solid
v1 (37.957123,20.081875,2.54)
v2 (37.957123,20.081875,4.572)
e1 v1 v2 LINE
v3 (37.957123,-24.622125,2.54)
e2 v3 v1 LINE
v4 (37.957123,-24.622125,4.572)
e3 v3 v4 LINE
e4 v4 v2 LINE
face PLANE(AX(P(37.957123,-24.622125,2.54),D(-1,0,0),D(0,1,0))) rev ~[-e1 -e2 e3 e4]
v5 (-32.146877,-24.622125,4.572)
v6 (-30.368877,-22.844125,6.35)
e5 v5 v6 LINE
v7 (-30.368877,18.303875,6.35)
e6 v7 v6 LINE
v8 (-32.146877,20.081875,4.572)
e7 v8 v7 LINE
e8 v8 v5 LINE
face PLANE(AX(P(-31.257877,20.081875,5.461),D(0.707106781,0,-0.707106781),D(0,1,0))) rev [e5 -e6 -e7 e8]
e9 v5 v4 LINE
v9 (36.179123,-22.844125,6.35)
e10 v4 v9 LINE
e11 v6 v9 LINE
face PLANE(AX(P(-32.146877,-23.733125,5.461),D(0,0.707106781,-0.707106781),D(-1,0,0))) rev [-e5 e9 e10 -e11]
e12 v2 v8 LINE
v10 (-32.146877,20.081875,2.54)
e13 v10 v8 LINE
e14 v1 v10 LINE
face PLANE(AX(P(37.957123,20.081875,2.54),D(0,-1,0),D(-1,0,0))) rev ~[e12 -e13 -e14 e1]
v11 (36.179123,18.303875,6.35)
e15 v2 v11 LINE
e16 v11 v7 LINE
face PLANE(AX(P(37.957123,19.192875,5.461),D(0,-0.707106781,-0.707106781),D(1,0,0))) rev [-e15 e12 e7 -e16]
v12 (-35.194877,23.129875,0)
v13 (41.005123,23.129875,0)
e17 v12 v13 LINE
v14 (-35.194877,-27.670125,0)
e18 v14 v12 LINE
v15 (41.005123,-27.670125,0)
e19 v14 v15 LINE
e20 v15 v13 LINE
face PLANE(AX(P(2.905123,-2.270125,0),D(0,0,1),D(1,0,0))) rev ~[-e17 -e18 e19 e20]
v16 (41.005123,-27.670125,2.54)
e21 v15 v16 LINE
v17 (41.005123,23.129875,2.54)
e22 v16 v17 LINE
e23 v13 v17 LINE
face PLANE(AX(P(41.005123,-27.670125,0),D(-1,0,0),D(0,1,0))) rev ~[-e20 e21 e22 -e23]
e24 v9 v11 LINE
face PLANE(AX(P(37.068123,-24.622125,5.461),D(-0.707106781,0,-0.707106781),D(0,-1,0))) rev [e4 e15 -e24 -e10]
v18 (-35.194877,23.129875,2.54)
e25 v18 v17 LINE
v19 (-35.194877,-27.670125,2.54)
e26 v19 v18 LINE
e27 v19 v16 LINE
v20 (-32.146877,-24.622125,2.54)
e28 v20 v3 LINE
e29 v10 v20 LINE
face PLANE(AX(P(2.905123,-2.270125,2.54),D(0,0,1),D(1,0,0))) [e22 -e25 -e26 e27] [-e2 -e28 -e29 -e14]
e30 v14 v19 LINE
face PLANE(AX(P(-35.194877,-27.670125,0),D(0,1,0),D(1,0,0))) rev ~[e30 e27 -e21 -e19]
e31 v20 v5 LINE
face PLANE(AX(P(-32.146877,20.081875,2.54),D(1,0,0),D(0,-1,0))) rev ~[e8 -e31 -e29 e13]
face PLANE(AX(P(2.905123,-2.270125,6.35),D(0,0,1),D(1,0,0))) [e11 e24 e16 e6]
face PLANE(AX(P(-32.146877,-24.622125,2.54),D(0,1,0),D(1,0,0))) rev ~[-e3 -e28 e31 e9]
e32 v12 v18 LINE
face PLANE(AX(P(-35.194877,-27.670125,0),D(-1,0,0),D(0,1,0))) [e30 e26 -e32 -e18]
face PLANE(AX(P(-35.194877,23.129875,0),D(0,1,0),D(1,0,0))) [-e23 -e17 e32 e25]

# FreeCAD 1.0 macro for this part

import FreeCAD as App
import Part
import Sketcher
from FreeCAD import Vector
Q = App.Units.Quantity


def edges_at(feature, points):
    """Names of the edges that pass closest to the given points."""
    edges = feature.Shape.Edges
    near = lambda p: min(range(len(edges)), key=lambda i: edges[i].distToShape(Part.Vertex(*p))[0])
    return sorted({f"Edge{near(p) + 1}" for p in points})


def add_polygon(sketch, points):
    """Adds a closed chain of lines whose ends are joined by coincident constraints."""
    first, n = sketch.GeometryCount, len(points)
    for a, b in zip(points, points[1:] + points[:1]):
        sketch.addGeometry(Part.LineSegment(App.Vector(*a, 0), App.Vector(*b, 0)), False)
    for i in range(n):
        sketch.addConstraint(Sketcher.Constraint("Coincident", first + i, 2, first + (i + 1) % n, 1))

doc = App.newDocument("Part")
body = doc.addObject("PartDesign::Body", "Body")

# Sketch on XY plane
sketch1 = body.newObject("Sketcher::SketchObject", "Sketch")
sketch1.AttachmentSupport = (doc.getObject("XY_Plane"), [""])
sketch1.MapMode = "FlatFace"
add_polygon(sketch1, [(-35.194877, 23.129875), (-35.194877, -27.670125), (41.005123, -27.670125), (41.005123, 23.129875)])  # lines 0-3
sketch1.addConstraint([
    Sketcher.Constraint("Vertical", 0),
    Sketcher.Constraint("Horizontal", 1),
    Sketcher.Constraint("Vertical", 2),
    Sketcher.Constraint("Horizontal", 3),
    Sketcher.Constraint("DistanceX", 1, 1, 1, 2, Q("3 in")),
    Sketcher.Constraint("DistanceY", 0, 2, 0, 1, Q("2 in")),
    Sketcher.Constraint("DistanceX", 0, 2, -1, 1, Q("35.194877 mm")),
    Sketcher.Constraint("DistanceY", 0, 2, -1, 1, Q("27.670125 mm")),
])
pad1 = body.newObject("PartDesign::Pad", "Pad")
pad1.Profile = sketch1
pad1.Length = Q("0.1 in")

# Sketch on XY plane
sketch2 = body.newObject("Sketcher::SketchObject", "Sketch001")
sketch2.AttachmentSupport = (doc.getObject("XY_Plane"), [""])
sketch2.MapMode = "FlatFace"
sketch2.AttachmentOffset = App.Placement(Vector(0, 0, 0.1 * 25.4), App.Rotation())
add_polygon(sketch2, [(37.957123, 20.081875), (-32.146877, 20.081875), (-32.146877, -24.622125), (37.957123, -24.622125)])  # lines 0-3
sketch2.addConstraint([
    Sketcher.Constraint("Horizontal", 0),
    Sketcher.Constraint("Vertical", 1),
    Sketcher.Constraint("Horizontal", 2),
    Sketcher.Constraint("Vertical", 3),
    Sketcher.Constraint("DistanceX", 0, 2, 0, 1, Q("2.76 in")),
    Sketcher.Constraint("DistanceY", 1, 2, 1, 1, Q("1.76 in")),
    Sketcher.Constraint("DistanceX", 0, 2, -1, 1, Q("1.2656251 in")),
    Sketcher.Constraint("DistanceY", -1, 1, 0, 2, Q("20.081875 mm")),
])
pad2 = body.newObject("PartDesign::Pad", "Pad001")
pad2.Profile = sketch2
pad2.Length = Q("0.15 in")
doc.recompute()

chamfer = body.newObject("PartDesign::Chamfer", "Chamfer")
chamfer.Base = (pad2, edges_at(pad2, [
    (2.905, -24.622, 6.35),
    (-32.147, -2.27, 6.35),
    (37.957, -2.27, 6.35),
    (2.905, 20.082, 6.35),
]))
chamfer.Size = Q("0.07 in")

doc.recompute()
